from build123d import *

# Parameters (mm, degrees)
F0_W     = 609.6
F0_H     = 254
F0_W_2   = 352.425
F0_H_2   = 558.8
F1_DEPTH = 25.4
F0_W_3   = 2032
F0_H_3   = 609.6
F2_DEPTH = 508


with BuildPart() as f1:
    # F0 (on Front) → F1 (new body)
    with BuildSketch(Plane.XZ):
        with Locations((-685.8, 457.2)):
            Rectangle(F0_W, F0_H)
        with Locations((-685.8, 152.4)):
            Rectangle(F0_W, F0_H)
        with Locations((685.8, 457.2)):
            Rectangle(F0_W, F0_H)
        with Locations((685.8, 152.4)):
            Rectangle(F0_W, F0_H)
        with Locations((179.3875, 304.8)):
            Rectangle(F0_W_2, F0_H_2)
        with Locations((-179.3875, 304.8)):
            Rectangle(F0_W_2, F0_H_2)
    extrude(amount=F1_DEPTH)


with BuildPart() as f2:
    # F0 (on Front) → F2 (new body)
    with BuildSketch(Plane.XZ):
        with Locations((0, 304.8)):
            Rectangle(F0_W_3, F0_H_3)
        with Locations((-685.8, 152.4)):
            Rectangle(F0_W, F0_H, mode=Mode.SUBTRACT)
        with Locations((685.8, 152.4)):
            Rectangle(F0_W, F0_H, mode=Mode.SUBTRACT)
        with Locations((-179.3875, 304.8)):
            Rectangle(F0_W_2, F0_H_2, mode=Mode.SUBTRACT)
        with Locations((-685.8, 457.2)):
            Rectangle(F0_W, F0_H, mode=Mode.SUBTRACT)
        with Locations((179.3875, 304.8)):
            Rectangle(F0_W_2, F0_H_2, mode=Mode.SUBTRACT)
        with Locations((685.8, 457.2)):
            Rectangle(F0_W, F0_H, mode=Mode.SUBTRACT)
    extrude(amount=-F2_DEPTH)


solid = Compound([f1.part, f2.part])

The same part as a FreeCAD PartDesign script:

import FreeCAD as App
import Part
import Sketcher
from FreeCAD import Vector
Q = App.Units.Quantity


def add_polygon(sketch, points):
    """Adds a closed chain of lines whose ends are joined by coincident constraints."""
    first, n = sketch.GeometryCount, len(points)
    for a, b in zip(points, points[1:] + points[:1]):
        sketch.addGeometry(Part.LineSegment(App.Vector(*a, 0), App.Vector(*b, 0)), False)
    for i in range(n):
        sketch.addConstraint(Sketcher.Constraint("Coincident", first + i, 2, first + (i + 1) % n, 1))

doc = App.newDocument("Part")
body = doc.addObject("PartDesign::Body", "Body")
body.AllowCompound = True

# Sketch on XZ plane
sketch1 = body.newObject("Sketcher::SketchObject", "Sketch")
sketch1.AttachmentSupport = (doc.getObject("XZ_Plane"), [""])
sketch1.MapMode = "FlatFace"
add_polygon(sketch1, [(-990.6, 584.2), (-990.6, 330.2), (-381, 330.2), (-381, 584.2)])  # lines 0-3
add_polygon(sketch1, [(-990.6, 279.4), (-990.6, 25.4), (-381, 25.4), (-381, 279.4)])  # lines 4-7
add_polygon(sketch1, [(381, 584.2), (381, 330.2), (990.6, 330.2), (990.6, 584.2)])  # lines 8-11
add_polygon(sketch1, [(381, 279.4), (381, 25.4), (990.6, 25.4), (990.6, 279.4)])  # lines 12-15
add_polygon(sketch1, [(3.175, 584.2), (3.175, 25.4), (355.6, 25.4), (355.6, 584.2)])  # lines 16-19
add_polygon(sketch1, [(-355.6, 584.2), (-355.6, 25.4), (-3.175, 25.4), (-3.175, 584.2)])  # lines 20-23
sketch1.addConstraint([
    Sketcher.Constraint("Vertical", 0),
    Sketcher.Constraint("Horizontal", 1),
    Sketcher.Constraint("Vertical", 2),
    Sketcher.Constraint("Horizontal", 3),
    Sketcher.Constraint("Vertical", 4),
    Sketcher.Constraint("Horizontal", 5),
    Sketcher.Constraint("Vertical", 6),
    Sketcher.Constraint("Horizontal", 7),
    Sketcher.Constraint("Vertical", 8),
    Sketcher.Constraint("Horizontal", 9),
    Sketcher.Constraint("Vertical", 10),
    Sketcher.Constraint("Horizontal", 11),
    Sketcher.Constraint("Vertical", 12),
    Sketcher.Constraint("Horizontal", 13),
    Sketcher.Constraint("Vertical", 14),
    Sketcher.Constraint("Horizontal", 15),
    Sketcher.Constraint("Vertical", 16),
    Sketcher.Constraint("Horizontal", 17),
    Sketcher.Constraint("Vertical", 18),
    Sketcher.Constraint("Horizontal", 19),
    Sketcher.Constraint("Vertical", 20),
    Sketcher.Constraint("Horizontal", 21),
    Sketcher.Constraint("Vertical", 22),
    Sketcher.Constraint("Horizontal", 23),
    Sketcher.Constraint("Symmetric", 1, 2, 8, 2, -2),
    Sketcher.Constraint("Symmetric", 3, 2, 10, 2, -2),
    Sketcher.Constraint("Symmetric", 5, 2, 12, 2, -2),
    Sketcher.Constraint("Symmetric", 7, 2, 14, 2, -2),
    Sketcher.Constraint("Symmetric", 17, 2, 20, 2, -2),
    Sketcher.Constraint("Symmetric", 19, 2, 22, 2, -2),
    Sketcher.Constraint("Horizontal", 13, 2, 16, 2),
    Sketcher.Constraint("Horizontal", 11, 2, 18, 2),
    Sketcher.Constraint("Vertical", 3, 2, 4, 2),
    Sketcher.Constraint("Vertical", 2, 2, 5, 2),
    Sketcher.Constraint("Equal", 2, 4),
    Sketcher.Constraint("DistanceX", 1, 1, 1, 2, Q("24 in")),
    Sketcher.Constraint("DistanceY", 0, 2, 0, 1, Q("10 in")),
    Sketcher.Constraint("DistanceY", 16, 2, 16, 1, Q("22 in")),
    Sketcher.Constraint("DistanceX", 0, 2, -1, 1, Q("39 in")),
    Sketcher.Constraint("DistanceY", -1, 1, 0, 2, Q("13 in")),
    Sketcher.Constraint("DistanceX", -1, 1, 17, 2, Q("14 in")),
    Sketcher.Constraint("DistanceX", 17, 1, 17, 2, Q("13.875 in")),
])
pad1 = body.newObject("PartDesign::Pad", "Pad")
pad1.Profile = sketch1
pad1.Length = Q("1 in")
body2 = doc.addObject("PartDesign::Body", "Body001")

# Sketch on XZ plane
sketch2 = body2.newObject("Sketcher::SketchObject", "Sketch001")
sketch2.AttachmentSupport = (doc.getObject("XZ_Plane001"), [""])
sketch2.MapMode = "FlatFace"
add_polygon(sketch2, [(-1016, 609.6), (-1016, 0), (1016, 0), (1016, 609.6)])  # lines 0-3
add_polygon(sketch2, [(-381, 25.4), (-990.6, 25.4), (-990.6, 279.4), (-381, 279.4)])  # lines 4-7
add_polygon(sketch2, [(990.6, 25.4), (381, 25.4), (381, 279.4), (990.6, 279.4)])  # lines 8-11
add_polygon(sketch2, [(-3.175, 25.4), (-355.6, 25.4), (-355.6, 584.2), (-3.175, 584.2)])  # lines 12-15
add_polygon(sketch2, [(-381, 330.2), (-990.6, 330.2), (-990.6, 584.2), (-381, 584.2)])  # lines 16-19
add_polygon(sketch2, [(355.6, 25.4), (3.175, 25.4), (3.175, 584.2), (355.6, 584.2)])  # lines 20-23
add_polygon(sketch2, [(990.6, 330.2), (381, 330.2), (381, 584.2), (990.6, 584.2)])  # lines 24-27
sketch2.addConstraint([
    Sketcher.Constraint("Vertical", 0),
    Sketcher.Constraint("Horizontal", 1),
    Sketcher.Constraint("Vertical", 2),
    Sketcher.Constraint("Horizontal", 3),
    Sketcher.Constraint("Horizontal", 4),
    Sketcher.Constraint("Vertical", 5),
    Sketcher.Constraint("Horizontal", 6),
    Sketcher.Constraint("Vertical", 7),
    Sketcher.Constraint("Horizontal", 8),
    Sketcher.Constraint("Vertical", 9),
    Sketcher.Constraint("Horizontal", 10),
    Sketcher.Constraint("Vertical", 11),
    Sketcher.Constraint("Horizontal", 12),
    Sketcher.Constraint("Vertical", 13),
    Sketcher.Constraint("Horizontal", 14),
    Sketcher.Constraint("Vertical", 15),
    Sketcher.Constraint("Horizontal", 16),
    Sketcher.Constraint("Vertical", 17),
    Sketcher.Constraint("Horizontal", 18),
    Sketcher.Constraint("Vertical", 19),
    Sketcher.Constraint("Horizontal", 20),
    Sketcher.Constraint("Vertical", 21),
    Sketcher.Constraint("Horizontal", 22),
    Sketcher.Constraint("Vertical", 23),
    Sketcher.Constraint("Horizontal", 24),
    Sketcher.Constraint("Vertical", 25),
    Sketcher.Constraint("Horizontal", 26),
    Sketcher.Constraint("Vertical", 27),
    Sketcher.Constraint("Symmetric", 0, 2, 1, 2, -1, 1),
    Sketcher.Constraint("Symmetric", 7, 2, 8, 2, -2),
    Sketcher.Constraint("Symmetric", 5, 2, 10, 2, -2),
    Sketcher.Constraint("Symmetric", 15, 2, 20, 2, -2),
    Sketcher.Constraint("Symmetric", 13, 2, 22, 2, -2),
    Sketcher.Constraint("Symmetric", 19, 2, 24, 2, -2),
    Sketcher.Constraint("Symmetric", 17, 2, 26, 2, -2),
    Sketcher.Constraint("Horizontal", 11, 2, 12, 2),
    Sketcher.Constraint("Horizontal", 14, 2, 17, 2),
    Sketcher.Constraint("Vertical", 5, 2, 16, 2),
    Sketcher.Constraint("Vertical", 7, 2, 18, 2),
    Sketcher.Constraint("Equal", 26, 0),
    Sketcher.Constraint("Equal", 11, 17),
    Sketcher.Constraint("DistanceX", 1, 1, 1, 2, Q("80 in")),
    Sketcher.Constraint("DistanceX", 4, 2, 4, 1, Q("24 in")),
    Sketcher.Constraint("DistanceY", 5, 1, 5, 2, Q("10 in")),
    Sketcher.Constraint("DistanceY", 13, 1, 13, 2, Q("22 in")),
    Sketcher.Constraint("DistanceX", 4, 2, -1, 1, Q("39 in")),
    Sketcher.Constraint("DistanceY", -1, 1, 4, 2, Q("1 in")),
    Sketcher.Constraint("DistanceX", 12, 2, -1, 1, Q("14 in")),
    Sketcher.Constraint("DistanceX", 12, 2, 12, 1, Q("13.875 in")),
])
pad2 = body2.newObject("PartDesign::Pad", "Pad001")
pad2.Profile = sketch2
pad2.Length = Q("20 in")
pad2.Reversed = True

doc.recompute()
